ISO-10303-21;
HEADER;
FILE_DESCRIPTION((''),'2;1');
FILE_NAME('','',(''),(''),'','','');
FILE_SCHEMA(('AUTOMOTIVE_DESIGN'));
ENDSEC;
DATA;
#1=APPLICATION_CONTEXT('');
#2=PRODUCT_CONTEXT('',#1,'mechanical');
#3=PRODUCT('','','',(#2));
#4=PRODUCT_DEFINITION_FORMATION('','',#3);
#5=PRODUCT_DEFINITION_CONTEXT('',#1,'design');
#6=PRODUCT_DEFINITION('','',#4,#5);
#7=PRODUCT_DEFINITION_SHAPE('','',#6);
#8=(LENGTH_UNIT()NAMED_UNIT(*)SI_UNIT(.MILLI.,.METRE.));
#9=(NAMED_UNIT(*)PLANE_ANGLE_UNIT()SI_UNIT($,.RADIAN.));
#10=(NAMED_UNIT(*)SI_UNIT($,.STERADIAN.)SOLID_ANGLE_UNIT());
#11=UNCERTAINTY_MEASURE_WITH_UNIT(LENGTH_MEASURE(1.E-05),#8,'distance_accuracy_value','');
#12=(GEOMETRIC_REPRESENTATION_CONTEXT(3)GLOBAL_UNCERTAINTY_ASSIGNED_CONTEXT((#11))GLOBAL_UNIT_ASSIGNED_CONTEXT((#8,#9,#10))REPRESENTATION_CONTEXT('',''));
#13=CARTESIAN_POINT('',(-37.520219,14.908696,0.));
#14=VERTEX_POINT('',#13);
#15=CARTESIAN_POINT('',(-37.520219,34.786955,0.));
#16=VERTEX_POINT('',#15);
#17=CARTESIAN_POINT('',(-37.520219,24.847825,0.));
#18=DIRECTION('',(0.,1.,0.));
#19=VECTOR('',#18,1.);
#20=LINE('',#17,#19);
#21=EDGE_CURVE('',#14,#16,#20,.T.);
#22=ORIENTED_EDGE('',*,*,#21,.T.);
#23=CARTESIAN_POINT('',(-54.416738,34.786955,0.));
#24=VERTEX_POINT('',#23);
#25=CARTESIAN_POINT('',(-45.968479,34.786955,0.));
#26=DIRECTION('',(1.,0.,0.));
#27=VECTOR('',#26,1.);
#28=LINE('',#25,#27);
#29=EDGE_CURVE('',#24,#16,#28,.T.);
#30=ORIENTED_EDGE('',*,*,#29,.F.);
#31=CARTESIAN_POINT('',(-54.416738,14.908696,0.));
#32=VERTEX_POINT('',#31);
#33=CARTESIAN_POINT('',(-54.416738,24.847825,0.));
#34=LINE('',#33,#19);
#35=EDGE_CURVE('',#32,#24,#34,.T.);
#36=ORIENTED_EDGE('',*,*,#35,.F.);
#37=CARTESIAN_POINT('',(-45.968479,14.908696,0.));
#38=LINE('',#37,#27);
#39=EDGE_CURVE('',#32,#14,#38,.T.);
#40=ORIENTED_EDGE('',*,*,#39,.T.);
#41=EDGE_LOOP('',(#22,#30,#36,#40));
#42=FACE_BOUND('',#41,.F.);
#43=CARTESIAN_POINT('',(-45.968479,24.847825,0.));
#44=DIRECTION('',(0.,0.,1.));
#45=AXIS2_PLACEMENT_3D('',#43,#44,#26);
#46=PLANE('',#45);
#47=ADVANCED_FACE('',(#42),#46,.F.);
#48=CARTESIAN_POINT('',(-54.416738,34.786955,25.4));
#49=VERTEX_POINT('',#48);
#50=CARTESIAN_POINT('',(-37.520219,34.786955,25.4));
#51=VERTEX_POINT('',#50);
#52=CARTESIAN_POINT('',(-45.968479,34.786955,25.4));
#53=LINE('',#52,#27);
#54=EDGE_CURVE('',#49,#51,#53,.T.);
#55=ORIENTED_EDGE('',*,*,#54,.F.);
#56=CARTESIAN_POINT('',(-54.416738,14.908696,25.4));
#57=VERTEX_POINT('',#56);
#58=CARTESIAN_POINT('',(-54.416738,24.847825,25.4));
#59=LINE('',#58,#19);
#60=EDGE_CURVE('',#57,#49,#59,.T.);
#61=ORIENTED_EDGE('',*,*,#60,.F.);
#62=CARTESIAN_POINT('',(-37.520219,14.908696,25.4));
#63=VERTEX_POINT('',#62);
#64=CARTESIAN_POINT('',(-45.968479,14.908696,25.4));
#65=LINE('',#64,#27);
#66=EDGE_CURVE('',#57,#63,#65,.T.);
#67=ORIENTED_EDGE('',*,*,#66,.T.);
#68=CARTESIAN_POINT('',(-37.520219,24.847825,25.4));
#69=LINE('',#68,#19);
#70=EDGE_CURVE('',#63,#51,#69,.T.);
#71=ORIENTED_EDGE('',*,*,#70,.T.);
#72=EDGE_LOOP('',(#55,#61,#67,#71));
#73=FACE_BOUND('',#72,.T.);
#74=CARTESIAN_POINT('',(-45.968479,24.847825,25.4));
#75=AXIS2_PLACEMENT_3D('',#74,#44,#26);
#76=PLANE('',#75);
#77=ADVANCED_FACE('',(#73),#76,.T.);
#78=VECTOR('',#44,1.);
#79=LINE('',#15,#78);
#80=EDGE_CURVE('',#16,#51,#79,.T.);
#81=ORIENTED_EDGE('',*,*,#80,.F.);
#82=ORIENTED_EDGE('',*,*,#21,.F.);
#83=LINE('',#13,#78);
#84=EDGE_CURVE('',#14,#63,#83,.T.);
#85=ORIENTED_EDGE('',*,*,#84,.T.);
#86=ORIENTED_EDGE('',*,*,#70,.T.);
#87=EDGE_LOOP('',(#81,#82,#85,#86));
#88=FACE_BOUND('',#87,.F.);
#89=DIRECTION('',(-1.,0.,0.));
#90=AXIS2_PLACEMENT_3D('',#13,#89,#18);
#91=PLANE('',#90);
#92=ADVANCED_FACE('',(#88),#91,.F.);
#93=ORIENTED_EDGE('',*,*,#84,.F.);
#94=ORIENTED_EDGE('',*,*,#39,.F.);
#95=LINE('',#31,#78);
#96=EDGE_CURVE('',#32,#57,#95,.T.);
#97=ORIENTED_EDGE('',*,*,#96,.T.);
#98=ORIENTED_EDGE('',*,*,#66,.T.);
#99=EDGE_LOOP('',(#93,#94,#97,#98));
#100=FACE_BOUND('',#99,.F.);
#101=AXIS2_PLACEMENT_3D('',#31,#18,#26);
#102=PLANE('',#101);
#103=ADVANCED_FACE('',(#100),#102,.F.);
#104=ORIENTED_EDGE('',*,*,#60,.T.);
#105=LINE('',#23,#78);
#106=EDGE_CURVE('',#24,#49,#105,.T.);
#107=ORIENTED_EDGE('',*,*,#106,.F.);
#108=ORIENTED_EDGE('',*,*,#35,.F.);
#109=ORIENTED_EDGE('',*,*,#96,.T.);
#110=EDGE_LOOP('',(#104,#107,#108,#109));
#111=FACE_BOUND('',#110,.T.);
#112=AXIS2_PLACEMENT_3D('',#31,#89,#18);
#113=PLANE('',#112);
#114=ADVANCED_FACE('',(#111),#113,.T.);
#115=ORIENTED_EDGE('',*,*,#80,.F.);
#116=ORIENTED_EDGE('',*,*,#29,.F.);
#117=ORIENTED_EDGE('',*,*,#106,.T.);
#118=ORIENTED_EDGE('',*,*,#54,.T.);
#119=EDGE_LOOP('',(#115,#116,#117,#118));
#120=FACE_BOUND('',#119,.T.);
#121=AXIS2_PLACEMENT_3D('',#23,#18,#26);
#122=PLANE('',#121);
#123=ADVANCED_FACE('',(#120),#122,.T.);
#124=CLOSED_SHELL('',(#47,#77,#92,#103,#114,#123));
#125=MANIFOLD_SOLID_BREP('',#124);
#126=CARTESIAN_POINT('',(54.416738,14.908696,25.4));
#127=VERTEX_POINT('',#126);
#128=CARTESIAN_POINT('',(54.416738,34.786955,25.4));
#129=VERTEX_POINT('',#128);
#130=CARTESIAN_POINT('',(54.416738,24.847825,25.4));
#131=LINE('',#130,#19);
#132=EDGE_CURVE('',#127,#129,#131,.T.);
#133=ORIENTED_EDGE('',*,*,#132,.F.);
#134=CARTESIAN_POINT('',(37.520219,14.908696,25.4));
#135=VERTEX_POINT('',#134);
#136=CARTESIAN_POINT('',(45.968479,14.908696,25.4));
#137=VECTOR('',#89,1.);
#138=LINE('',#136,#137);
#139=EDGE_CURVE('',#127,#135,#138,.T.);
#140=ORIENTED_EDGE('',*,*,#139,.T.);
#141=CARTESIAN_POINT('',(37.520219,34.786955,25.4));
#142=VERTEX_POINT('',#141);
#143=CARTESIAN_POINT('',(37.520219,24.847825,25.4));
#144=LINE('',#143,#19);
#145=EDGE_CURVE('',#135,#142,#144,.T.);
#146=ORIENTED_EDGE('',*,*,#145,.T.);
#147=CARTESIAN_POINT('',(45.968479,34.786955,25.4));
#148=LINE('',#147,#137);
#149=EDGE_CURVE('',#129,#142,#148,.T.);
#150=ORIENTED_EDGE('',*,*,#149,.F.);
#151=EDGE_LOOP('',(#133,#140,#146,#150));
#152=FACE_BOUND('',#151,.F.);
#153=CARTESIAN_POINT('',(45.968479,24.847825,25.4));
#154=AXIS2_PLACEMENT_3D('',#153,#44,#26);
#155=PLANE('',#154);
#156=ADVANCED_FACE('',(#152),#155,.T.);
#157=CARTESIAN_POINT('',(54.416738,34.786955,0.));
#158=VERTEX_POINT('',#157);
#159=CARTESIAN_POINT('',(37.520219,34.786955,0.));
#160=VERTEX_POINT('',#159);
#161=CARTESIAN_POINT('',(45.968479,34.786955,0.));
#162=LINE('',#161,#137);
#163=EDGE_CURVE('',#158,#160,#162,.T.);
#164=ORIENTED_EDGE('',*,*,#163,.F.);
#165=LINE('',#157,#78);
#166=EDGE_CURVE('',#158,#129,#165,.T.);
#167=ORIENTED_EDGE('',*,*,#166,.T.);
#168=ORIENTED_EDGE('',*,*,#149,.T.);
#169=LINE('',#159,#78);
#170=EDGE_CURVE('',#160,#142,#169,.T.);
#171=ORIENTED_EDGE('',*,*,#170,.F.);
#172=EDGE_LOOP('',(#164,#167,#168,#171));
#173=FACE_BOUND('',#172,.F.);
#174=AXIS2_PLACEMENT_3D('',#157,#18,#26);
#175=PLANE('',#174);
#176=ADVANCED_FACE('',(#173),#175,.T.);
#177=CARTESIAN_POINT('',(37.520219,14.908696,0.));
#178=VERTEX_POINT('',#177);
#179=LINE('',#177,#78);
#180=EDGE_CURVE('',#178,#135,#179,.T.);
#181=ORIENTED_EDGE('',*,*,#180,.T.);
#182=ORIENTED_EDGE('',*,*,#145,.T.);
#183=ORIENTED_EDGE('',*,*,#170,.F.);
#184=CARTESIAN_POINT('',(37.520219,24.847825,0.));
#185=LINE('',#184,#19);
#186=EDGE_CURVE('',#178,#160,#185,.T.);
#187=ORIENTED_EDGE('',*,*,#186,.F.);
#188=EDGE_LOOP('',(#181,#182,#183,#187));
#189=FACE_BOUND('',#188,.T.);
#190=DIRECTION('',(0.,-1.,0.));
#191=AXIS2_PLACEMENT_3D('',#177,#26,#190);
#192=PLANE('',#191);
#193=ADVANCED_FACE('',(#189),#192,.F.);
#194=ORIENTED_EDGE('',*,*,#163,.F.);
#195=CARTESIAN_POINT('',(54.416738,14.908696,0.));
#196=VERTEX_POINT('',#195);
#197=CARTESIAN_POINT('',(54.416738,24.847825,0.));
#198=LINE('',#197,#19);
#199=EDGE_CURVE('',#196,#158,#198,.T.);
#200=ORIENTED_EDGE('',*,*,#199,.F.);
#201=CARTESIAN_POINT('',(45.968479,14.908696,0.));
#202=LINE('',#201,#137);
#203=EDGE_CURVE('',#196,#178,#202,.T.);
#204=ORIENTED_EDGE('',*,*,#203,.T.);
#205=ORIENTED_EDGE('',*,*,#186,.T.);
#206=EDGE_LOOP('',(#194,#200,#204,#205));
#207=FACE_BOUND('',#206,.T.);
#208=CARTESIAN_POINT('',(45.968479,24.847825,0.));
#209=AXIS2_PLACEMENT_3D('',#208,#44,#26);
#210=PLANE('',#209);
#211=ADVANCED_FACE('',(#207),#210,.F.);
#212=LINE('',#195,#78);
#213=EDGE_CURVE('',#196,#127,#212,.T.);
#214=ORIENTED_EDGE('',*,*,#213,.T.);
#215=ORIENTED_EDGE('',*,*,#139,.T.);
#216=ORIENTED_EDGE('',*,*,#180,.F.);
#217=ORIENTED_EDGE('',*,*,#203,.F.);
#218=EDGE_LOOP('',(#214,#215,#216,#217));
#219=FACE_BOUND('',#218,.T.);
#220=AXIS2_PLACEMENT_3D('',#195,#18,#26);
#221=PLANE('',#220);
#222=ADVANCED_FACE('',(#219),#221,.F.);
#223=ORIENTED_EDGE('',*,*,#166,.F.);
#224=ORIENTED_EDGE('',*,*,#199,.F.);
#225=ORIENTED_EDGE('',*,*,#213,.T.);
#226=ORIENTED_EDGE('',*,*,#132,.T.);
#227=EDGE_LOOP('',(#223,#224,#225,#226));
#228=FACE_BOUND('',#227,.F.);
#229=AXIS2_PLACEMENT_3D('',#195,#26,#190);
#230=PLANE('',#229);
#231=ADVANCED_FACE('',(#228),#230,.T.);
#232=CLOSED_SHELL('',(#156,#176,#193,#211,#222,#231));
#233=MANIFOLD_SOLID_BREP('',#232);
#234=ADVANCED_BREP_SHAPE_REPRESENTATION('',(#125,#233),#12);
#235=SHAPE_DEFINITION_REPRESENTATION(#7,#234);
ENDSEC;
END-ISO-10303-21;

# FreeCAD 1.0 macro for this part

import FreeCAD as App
import Part
import Sketcher
from FreeCAD import Vector
Q = App.Units.Quantity


def add_polygon(sketch, points):
    """Adds a closed chain of lines whose ends are joined by coincident constraints."""
    first, n = sketch.GeometryCount, len(points)
    for a, b in zip(points, points[1:] + points[:1]):
        sketch.addGeometry(Part.LineSegment(App.Vector(*a, 0), App.Vector(*b, 0)), False)
    for i in range(n):
        sketch.addConstraint(Sketcher.Constraint("Coincident", first + i, 2, first + (i + 1) % n, 1))

doc = App.newDocument("Part")
body = doc.addObject("PartDesign::Body", "Body")
body.AllowCompound = True

sketch1 = doc.addObject("Sketcher::SketchObject", "Sketch")
body.addObject(sketch1)
sketch1.AttachmentSupport = (doc.XY_Plane, [""])
sketch1.MapMode = "FlatFace"
add_polygon(sketch1, [(-54, 35), (-54, 15), (-38, 15), (-38, 35)])
sketch1.addConstraint(Sketcher.Constraint("Vertical", 0))
sketch1.addConstraint(Sketcher.Constraint("Horizontal", 1))
sketch1.addConstraint(Sketcher.Constraint("Vertical", 2))
sketch1.addConstraint(Sketcher.Constraint("Horizontal", 3))
sketch1.addConstraint(Sketcher.Constraint("DistanceX", 1, 1, 1, 2, 16.89652))
sketch1.addConstraint(Sketcher.Constraint("DistanceY", 0, 2, 0, 1, 19.878259))
sketch1.addConstraint(Sketcher.Constraint("DistanceX", 0, 2, -1, 1, 54.416738))
sketch1.addConstraint(Sketcher.Constraint("DistanceY", -1, 1, 0, 2, 14.908696))
pad1 = doc.addObject("PartDesign::Pad", "Pad")
body.addObject(pad1)
pad1.Profile = sketch1
pad1.Length = Q("1 in")
doc.recompute()

mirrored = doc.addObject("PartDesign::Mirrored", "Mirrored")
body.addObject(mirrored)
mirrored.Originals = [pad1]
mirrored.MirrorPlane = (doc.YZ_Plane, [""])
body.Tip = mirrored

doc.recompute()
